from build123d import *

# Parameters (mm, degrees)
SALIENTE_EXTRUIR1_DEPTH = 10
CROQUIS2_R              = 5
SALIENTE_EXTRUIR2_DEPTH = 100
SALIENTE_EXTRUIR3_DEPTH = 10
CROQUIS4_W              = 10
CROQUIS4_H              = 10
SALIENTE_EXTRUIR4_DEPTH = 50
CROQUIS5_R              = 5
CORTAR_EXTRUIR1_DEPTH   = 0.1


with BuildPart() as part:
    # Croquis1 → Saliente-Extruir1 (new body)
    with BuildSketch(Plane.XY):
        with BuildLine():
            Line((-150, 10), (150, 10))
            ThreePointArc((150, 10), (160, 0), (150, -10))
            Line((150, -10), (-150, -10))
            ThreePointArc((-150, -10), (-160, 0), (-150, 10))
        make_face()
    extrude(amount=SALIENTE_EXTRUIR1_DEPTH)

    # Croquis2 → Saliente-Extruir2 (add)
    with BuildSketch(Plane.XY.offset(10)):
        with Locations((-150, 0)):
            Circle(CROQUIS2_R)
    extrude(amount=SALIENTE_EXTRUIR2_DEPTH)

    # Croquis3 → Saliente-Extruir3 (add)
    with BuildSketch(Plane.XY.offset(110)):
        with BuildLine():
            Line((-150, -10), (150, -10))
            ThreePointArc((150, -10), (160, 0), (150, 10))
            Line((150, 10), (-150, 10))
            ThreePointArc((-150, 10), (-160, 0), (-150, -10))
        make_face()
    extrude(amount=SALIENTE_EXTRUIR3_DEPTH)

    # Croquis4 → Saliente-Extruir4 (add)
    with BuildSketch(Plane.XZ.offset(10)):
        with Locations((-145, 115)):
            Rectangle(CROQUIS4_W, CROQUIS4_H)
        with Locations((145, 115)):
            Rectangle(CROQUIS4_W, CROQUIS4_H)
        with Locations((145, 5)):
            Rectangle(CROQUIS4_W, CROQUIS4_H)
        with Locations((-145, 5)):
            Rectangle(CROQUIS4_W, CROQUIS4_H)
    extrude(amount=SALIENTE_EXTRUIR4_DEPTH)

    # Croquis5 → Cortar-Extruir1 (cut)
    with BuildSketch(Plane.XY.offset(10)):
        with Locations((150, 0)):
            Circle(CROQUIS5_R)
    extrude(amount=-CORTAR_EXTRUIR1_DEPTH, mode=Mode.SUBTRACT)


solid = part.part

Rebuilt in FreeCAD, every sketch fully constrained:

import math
import FreeCAD as App
import Part
import Sketcher
from FreeCAD import Vector

doc = App.newDocument("Part")
body = doc.addObject("PartDesign::Body", "Body")

# Sketch on XY plane
sketch1 = body.newObject("Sketcher::SketchObject", "Sketch")
sketch1.AttachmentSupport = (doc.getObject("XY_Plane"), [""])
sketch1.MapMode = "FlatFace"
sketch1.addGeometry(Part.LineSegment(Vector(150, 10, 0), Vector(-150, 10, 0)), False)
sketch1.addGeometry(Part.ArcOfCircle(Part.Circle(Vector(-150, 0, 0), Vector(0, 0, 1), 10), math.radians(90), math.radians(270)), False)
sketch1.addGeometry(Part.LineSegment(Vector(-150, -10, 0), Vector(150, -10, 0)), False)
sketch1.addGeometry(Part.ArcOfCircle(Part.Circle(Vector(150, 0, 0), Vector(0, 0, 1), 10), math.radians(-90), math.radians(90)), False)
sketch1.addConstraint(Sketcher.Constraint("Tangent", 0, 2, 1, 1))
sketch1.addConstraint(Sketcher.Constraint("Tangent", 1, 2, 2, 1))
sketch1.addConstraint(Sketcher.Constraint("Tangent", 2, 2, 3, 1))
sketch1.addConstraint(Sketcher.Constraint("Tangent", 3, 2, 0, 1))
sketch1.addConstraint(Sketcher.Constraint("Horizontal", 0))
sketch1.addConstraint(Sketcher.Constraint("Horizontal", 2))
sketch1.addConstraint(Sketcher.Constraint("Symmetric", 1, 3, 3, 3, -1, 1))
sketch1.addConstraint(Sketcher.Constraint("Radius", 1, 10.0))
sketch1.addConstraint(Sketcher.Constraint("DistanceX", 0, 2, 0, 1, 300.0))
pad1 = body.newObject("PartDesign::Pad", "Pad")
pad1.Profile = sketch1
pad1.Length = 10

# Sketch on XY plane
sketch2 = body.newObject("Sketcher::SketchObject", "Sketch001")
sketch2.AttachmentSupport = (doc.getObject("XY_Plane"), [""])
sketch2.MapMode = "FlatFace"
sketch2.AttachmentOffset = App.Placement(Vector(0, 0, 10), App.Rotation())
sketch2.addGeometry(Part.Circle(Vector(-150, 0, 0), Vector(0, 0, 1), 5), False)
sketch2.addConstraint(Sketcher.Constraint("PointOnObject", 0, 3, -1))
sketch2.addConstraint(Sketcher.Constraint("Diameter", 0, 10.0))
sketch2.addConstraint(Sketcher.Constraint("DistanceX", 0, 3, -1, 1, 150.0))
pad2 = body.newObject("PartDesign::Pad", "Pad001")
pad2.Profile = sketch2
pad2.Length = 100

# Sketch on XY plane
sketch3 = body.newObject("Sketcher::SketchObject", "Sketch002")
sketch3.AttachmentSupport = (doc.getObject("XY_Plane"), [""])
sketch3.MapMode = "FlatFace"
sketch3.AttachmentOffset = App.Placement(Vector(0, 0, 110), App.Rotation())
sketch3.addGeometry(Part.LineSegment(Vector(-150, -10, 0), Vector(150, -10, 0)), False)
sketch3.addGeometry(Part.ArcOfCircle(Part.Circle(Vector(150, 0, 0), Vector(0, 0, 1), 10), math.radians(-90), math.radians(90)), False)
sketch3.addGeometry(Part.LineSegment(Vector(150, 10, 0), Vector(-150, 10, 0)), False)
sketch3.addGeometry(Part.ArcOfCircle(Part.Circle(Vector(-150, 0, 0), Vector(0, 0, 1), 10), math.radians(90), math.radians(270)), False)
sketch3.addConstraint(Sketcher.Constraint("Tangent", 0, 2, 1, 1))
sketch3.addConstraint(Sketcher.Constraint("Tangent", 1, 2, 2, 1))
sketch3.addConstraint(Sketcher.Constraint("Tangent", 2, 2, 3, 1))
sketch3.addConstraint(Sketcher.Constraint("Tangent", 3, 2, 0, 1))
sketch3.addConstraint(Sketcher.Constraint("Horizontal", 0))
sketch3.addConstraint(Sketcher.Constraint("Horizontal", 2))
sketch3.addConstraint(Sketcher.Constraint("Symmetric", 1, 3, 3, 3, -1, 1))
sketch3.addConstraint(Sketcher.Constraint("Radius", 1, 10.0))
sketch3.addConstraint(Sketcher.Constraint("DistanceX", 0, 1, 0, 2, 300.0))
pad3 = body.newObject("PartDesign::Pad", "Pad002")
pad3.Profile = sketch3
pad3.Length = 10

# Sketch on XZ plane
sketch4 = body.newObject("Sketcher::SketchObject", "Sketch003")
sketch4.AttachmentSupport = (doc.getObject("XZ_Plane"), [""])
sketch4.MapMode = "FlatFace"
sketch4.AttachmentOffset = App.Placement(Vector(0, 0, 10), App.Rotation())
sketch4.addGeometry(Part.LineSegment(Vector(-150, 120, 0), Vector(-150, 110, 0)), False)
sketch4.addGeometry(Part.LineSegment(Vector(-150, 110, 0), Vector(-140, 110, 0)), False)
sketch4.addGeometry(Part.LineSegment(Vector(-140, 110, 0), Vector(-140, 120, 0)), False)
sketch4.addGeometry(Part.LineSegment(Vector(-140, 120, 0), Vector(-150, 120, 0)), False)
sketch4.addGeometry(Part.LineSegment(Vector(140, 120, 0), Vector(140, 110, 0)), False)
sketch4.addGeometry(Part.LineSegment(Vector(140, 110, 0), Vector(150, 110, 0)), False)
sketch4.addGeometry(Part.LineSegment(Vector(150, 110, 0), Vector(150, 120, 0)), False)
sketch4.addGeometry(Part.LineSegment(Vector(150, 120, 0), Vector(140, 120, 0)), False)
sketch4.addGeometry(Part.LineSegment(Vector(140, 10, 0), Vector(140, 0, 0)), False)
sketch4.addGeometry(Part.LineSegment(Vector(140, 0, 0), Vector(150, 0, 0)), False)
sketch4.addGeometry(Part.LineSegment(Vector(150, 0, 0), Vector(150, 10, 0)), False)
sketch4.addGeometry(Part.LineSegment(Vector(150, 10, 0), Vector(140, 10, 0)), False)
sketch4.addGeometry(Part.LineSegment(Vector(-150, 10, 0), Vector(-150, 0, 0)), False)
sketch4.addGeometry(Part.LineSegment(Vector(-150, 0, 0), Vector(-140, 0, 0)), False)
sketch4.addGeometry(Part.LineSegment(Vector(-140, 0, 0), Vector(-140, 10, 0)), False)
sketch4.addGeometry(Part.LineSegment(Vector(-140, 10, 0), Vector(-150, 10, 0)), False)
sketch4.addConstraint(Sketcher.Constraint("Coincident", 0, 2, 1, 1))
sketch4.addConstraint(Sketcher.Constraint("Coincident", 1, 2, 2, 1))
sketch4.addConstraint(Sketcher.Constraint("Coincident", 2, 2, 3, 1))
sketch4.addConstraint(Sketcher.Constraint("Coincident", 3, 2, 0, 1))
sketch4.addConstraint(Sketcher.Constraint("Coincident", 4, 2, 5, 1))
sketch4.addConstraint(Sketcher.Constraint("Coincident", 5, 2, 6, 1))
sketch4.addConstraint(Sketcher.Constraint("Coincident", 6, 2, 7, 1))
sketch4.addConstraint(Sketcher.Constraint("Coincident", 7, 2, 4, 1))
sketch4.addConstraint(Sketcher.Constraint("Coincident", 8, 2, 9, 1))
sketch4.addConstraint(Sketcher.Constraint("Coincident", 9, 2, 10, 1))
sketch4.addConstraint(Sketcher.Constraint("Coincident", 10, 2, 11, 1))
sketch4.addConstraint(Sketcher.Constraint("Coincident", 11, 2, 8, 1))
sketch4.addConstraint(Sketcher.Constraint("Coincident", 12, 2, 13, 1))
sketch4.addConstraint(Sketcher.Constraint("Coincident", 13, 2, 14, 1))
sketch4.addConstraint(Sketcher.Constraint("Coincident", 14, 2, 15, 1))
sketch4.addConstraint(Sketcher.Constraint("Coincident", 15, 2, 12, 1))
sketch4.addConstraint(Sketcher.Constraint("Vertical", 0))
sketch4.addConstraint(Sketcher.Constraint("Horizontal", 1))
sketch4.addConstraint(Sketcher.Constraint("Vertical", 2))
sketch4.addConstraint(Sketcher.Constraint("Horizontal", 3))
sketch4.addConstraint(Sketcher.Constraint("Vertical", 4))
sketch4.addConstraint(Sketcher.Constraint("Horizontal", 5))
sketch4.addConstraint(Sketcher.Constraint("Vertical", 6))
sketch4.addConstraint(Sketcher.Constraint("Horizontal", 7))
sketch4.addConstraint(Sketcher.Constraint("Vertical", 8))
sketch4.addConstraint(Sketcher.Constraint("Horizontal", 9))
sketch4.addConstraint(Sketcher.Constraint("Vertical", 10))
sketch4.addConstraint(Sketcher.Constraint("Horizontal", 11))
sketch4.addConstraint(Sketcher.Constraint("Vertical", 12))
sketch4.addConstraint(Sketcher.Constraint("Horizontal", 13))
sketch4.addConstraint(Sketcher.Constraint("Vertical", 14))
sketch4.addConstraint(Sketcher.Constraint("Horizontal", 15))
sketch4.addConstraint(Sketcher.Constraint("Symmetric", 9, 2, 12, 2, -1, 1))
sketch4.addConstraint(Sketcher.Constraint("Symmetric", 1, 2, 4, 2, -2))
sketch4.addConstraint(Sketcher.Constraint("Symmetric", 3, 2, 6, 2, -2))
sketch4.addConstraint(Sketcher.Constraint("Symmetric", 8, 2, 13, 2, -2))
sketch4.addConstraint(Sketcher.Constraint("Horizontal", 11, 2, 14, 2))
sketch4.addConstraint(Sketcher.Constraint("Vertical", 7, 2, 8, 2))
sketch4.addConstraint(Sketcher.Constraint("Vertical", 6, 2, 9, 2))
sketch4.addConstraint(Sketcher.Constraint("Equal", 15, 0))
sketch4.addConstraint(Sketcher.Constraint("Equal", 6, 8))
sketch4.addConstraint(Sketcher.Constraint("DistanceX", 1, 1, 1, 2, 10.0))
sketch4.addConstraint(Sketcher.Constraint("DistanceX", 0, 2, -1, 1, 150.0))
sketch4.addConstraint(Sketcher.Constraint("DistanceY", -1, 1, 0, 2, 110.0))
pad4 = body.newObject("PartDesign::Pad", "Pad003")
pad4.Profile = sketch4
pad4.Length = 50

# Sketch on XY plane
sketch5 = body.newObject("Sketcher::SketchObject", "Sketch004")
sketch5.AttachmentSupport = (doc.getObject("XY_Plane"), [""])
sketch5.MapMode = "FlatFace"
sketch5.AttachmentOffset = App.Placement(Vector(0, 0, 10), App.Rotation())
sketch5.addGeometry(Part.Circle(Vector(150, 0, 0), Vector(0, 0, 1), 5), False)
sketch5.addConstraint(Sketcher.Constraint("PointOnObject", 0, 3, -1))
sketch5.addConstraint(Sketcher.Constraint("Diameter", 0, 10.0))
sketch5.addConstraint(Sketcher.Constraint("DistanceX", -1, 1, 0, 3, 150.0))
pocket1 = body.newObject("PartDesign::Pocket", "Pocket")
pocket1.Profile = sketch5
pocket1.Length = 0.1

doc.recompute()
